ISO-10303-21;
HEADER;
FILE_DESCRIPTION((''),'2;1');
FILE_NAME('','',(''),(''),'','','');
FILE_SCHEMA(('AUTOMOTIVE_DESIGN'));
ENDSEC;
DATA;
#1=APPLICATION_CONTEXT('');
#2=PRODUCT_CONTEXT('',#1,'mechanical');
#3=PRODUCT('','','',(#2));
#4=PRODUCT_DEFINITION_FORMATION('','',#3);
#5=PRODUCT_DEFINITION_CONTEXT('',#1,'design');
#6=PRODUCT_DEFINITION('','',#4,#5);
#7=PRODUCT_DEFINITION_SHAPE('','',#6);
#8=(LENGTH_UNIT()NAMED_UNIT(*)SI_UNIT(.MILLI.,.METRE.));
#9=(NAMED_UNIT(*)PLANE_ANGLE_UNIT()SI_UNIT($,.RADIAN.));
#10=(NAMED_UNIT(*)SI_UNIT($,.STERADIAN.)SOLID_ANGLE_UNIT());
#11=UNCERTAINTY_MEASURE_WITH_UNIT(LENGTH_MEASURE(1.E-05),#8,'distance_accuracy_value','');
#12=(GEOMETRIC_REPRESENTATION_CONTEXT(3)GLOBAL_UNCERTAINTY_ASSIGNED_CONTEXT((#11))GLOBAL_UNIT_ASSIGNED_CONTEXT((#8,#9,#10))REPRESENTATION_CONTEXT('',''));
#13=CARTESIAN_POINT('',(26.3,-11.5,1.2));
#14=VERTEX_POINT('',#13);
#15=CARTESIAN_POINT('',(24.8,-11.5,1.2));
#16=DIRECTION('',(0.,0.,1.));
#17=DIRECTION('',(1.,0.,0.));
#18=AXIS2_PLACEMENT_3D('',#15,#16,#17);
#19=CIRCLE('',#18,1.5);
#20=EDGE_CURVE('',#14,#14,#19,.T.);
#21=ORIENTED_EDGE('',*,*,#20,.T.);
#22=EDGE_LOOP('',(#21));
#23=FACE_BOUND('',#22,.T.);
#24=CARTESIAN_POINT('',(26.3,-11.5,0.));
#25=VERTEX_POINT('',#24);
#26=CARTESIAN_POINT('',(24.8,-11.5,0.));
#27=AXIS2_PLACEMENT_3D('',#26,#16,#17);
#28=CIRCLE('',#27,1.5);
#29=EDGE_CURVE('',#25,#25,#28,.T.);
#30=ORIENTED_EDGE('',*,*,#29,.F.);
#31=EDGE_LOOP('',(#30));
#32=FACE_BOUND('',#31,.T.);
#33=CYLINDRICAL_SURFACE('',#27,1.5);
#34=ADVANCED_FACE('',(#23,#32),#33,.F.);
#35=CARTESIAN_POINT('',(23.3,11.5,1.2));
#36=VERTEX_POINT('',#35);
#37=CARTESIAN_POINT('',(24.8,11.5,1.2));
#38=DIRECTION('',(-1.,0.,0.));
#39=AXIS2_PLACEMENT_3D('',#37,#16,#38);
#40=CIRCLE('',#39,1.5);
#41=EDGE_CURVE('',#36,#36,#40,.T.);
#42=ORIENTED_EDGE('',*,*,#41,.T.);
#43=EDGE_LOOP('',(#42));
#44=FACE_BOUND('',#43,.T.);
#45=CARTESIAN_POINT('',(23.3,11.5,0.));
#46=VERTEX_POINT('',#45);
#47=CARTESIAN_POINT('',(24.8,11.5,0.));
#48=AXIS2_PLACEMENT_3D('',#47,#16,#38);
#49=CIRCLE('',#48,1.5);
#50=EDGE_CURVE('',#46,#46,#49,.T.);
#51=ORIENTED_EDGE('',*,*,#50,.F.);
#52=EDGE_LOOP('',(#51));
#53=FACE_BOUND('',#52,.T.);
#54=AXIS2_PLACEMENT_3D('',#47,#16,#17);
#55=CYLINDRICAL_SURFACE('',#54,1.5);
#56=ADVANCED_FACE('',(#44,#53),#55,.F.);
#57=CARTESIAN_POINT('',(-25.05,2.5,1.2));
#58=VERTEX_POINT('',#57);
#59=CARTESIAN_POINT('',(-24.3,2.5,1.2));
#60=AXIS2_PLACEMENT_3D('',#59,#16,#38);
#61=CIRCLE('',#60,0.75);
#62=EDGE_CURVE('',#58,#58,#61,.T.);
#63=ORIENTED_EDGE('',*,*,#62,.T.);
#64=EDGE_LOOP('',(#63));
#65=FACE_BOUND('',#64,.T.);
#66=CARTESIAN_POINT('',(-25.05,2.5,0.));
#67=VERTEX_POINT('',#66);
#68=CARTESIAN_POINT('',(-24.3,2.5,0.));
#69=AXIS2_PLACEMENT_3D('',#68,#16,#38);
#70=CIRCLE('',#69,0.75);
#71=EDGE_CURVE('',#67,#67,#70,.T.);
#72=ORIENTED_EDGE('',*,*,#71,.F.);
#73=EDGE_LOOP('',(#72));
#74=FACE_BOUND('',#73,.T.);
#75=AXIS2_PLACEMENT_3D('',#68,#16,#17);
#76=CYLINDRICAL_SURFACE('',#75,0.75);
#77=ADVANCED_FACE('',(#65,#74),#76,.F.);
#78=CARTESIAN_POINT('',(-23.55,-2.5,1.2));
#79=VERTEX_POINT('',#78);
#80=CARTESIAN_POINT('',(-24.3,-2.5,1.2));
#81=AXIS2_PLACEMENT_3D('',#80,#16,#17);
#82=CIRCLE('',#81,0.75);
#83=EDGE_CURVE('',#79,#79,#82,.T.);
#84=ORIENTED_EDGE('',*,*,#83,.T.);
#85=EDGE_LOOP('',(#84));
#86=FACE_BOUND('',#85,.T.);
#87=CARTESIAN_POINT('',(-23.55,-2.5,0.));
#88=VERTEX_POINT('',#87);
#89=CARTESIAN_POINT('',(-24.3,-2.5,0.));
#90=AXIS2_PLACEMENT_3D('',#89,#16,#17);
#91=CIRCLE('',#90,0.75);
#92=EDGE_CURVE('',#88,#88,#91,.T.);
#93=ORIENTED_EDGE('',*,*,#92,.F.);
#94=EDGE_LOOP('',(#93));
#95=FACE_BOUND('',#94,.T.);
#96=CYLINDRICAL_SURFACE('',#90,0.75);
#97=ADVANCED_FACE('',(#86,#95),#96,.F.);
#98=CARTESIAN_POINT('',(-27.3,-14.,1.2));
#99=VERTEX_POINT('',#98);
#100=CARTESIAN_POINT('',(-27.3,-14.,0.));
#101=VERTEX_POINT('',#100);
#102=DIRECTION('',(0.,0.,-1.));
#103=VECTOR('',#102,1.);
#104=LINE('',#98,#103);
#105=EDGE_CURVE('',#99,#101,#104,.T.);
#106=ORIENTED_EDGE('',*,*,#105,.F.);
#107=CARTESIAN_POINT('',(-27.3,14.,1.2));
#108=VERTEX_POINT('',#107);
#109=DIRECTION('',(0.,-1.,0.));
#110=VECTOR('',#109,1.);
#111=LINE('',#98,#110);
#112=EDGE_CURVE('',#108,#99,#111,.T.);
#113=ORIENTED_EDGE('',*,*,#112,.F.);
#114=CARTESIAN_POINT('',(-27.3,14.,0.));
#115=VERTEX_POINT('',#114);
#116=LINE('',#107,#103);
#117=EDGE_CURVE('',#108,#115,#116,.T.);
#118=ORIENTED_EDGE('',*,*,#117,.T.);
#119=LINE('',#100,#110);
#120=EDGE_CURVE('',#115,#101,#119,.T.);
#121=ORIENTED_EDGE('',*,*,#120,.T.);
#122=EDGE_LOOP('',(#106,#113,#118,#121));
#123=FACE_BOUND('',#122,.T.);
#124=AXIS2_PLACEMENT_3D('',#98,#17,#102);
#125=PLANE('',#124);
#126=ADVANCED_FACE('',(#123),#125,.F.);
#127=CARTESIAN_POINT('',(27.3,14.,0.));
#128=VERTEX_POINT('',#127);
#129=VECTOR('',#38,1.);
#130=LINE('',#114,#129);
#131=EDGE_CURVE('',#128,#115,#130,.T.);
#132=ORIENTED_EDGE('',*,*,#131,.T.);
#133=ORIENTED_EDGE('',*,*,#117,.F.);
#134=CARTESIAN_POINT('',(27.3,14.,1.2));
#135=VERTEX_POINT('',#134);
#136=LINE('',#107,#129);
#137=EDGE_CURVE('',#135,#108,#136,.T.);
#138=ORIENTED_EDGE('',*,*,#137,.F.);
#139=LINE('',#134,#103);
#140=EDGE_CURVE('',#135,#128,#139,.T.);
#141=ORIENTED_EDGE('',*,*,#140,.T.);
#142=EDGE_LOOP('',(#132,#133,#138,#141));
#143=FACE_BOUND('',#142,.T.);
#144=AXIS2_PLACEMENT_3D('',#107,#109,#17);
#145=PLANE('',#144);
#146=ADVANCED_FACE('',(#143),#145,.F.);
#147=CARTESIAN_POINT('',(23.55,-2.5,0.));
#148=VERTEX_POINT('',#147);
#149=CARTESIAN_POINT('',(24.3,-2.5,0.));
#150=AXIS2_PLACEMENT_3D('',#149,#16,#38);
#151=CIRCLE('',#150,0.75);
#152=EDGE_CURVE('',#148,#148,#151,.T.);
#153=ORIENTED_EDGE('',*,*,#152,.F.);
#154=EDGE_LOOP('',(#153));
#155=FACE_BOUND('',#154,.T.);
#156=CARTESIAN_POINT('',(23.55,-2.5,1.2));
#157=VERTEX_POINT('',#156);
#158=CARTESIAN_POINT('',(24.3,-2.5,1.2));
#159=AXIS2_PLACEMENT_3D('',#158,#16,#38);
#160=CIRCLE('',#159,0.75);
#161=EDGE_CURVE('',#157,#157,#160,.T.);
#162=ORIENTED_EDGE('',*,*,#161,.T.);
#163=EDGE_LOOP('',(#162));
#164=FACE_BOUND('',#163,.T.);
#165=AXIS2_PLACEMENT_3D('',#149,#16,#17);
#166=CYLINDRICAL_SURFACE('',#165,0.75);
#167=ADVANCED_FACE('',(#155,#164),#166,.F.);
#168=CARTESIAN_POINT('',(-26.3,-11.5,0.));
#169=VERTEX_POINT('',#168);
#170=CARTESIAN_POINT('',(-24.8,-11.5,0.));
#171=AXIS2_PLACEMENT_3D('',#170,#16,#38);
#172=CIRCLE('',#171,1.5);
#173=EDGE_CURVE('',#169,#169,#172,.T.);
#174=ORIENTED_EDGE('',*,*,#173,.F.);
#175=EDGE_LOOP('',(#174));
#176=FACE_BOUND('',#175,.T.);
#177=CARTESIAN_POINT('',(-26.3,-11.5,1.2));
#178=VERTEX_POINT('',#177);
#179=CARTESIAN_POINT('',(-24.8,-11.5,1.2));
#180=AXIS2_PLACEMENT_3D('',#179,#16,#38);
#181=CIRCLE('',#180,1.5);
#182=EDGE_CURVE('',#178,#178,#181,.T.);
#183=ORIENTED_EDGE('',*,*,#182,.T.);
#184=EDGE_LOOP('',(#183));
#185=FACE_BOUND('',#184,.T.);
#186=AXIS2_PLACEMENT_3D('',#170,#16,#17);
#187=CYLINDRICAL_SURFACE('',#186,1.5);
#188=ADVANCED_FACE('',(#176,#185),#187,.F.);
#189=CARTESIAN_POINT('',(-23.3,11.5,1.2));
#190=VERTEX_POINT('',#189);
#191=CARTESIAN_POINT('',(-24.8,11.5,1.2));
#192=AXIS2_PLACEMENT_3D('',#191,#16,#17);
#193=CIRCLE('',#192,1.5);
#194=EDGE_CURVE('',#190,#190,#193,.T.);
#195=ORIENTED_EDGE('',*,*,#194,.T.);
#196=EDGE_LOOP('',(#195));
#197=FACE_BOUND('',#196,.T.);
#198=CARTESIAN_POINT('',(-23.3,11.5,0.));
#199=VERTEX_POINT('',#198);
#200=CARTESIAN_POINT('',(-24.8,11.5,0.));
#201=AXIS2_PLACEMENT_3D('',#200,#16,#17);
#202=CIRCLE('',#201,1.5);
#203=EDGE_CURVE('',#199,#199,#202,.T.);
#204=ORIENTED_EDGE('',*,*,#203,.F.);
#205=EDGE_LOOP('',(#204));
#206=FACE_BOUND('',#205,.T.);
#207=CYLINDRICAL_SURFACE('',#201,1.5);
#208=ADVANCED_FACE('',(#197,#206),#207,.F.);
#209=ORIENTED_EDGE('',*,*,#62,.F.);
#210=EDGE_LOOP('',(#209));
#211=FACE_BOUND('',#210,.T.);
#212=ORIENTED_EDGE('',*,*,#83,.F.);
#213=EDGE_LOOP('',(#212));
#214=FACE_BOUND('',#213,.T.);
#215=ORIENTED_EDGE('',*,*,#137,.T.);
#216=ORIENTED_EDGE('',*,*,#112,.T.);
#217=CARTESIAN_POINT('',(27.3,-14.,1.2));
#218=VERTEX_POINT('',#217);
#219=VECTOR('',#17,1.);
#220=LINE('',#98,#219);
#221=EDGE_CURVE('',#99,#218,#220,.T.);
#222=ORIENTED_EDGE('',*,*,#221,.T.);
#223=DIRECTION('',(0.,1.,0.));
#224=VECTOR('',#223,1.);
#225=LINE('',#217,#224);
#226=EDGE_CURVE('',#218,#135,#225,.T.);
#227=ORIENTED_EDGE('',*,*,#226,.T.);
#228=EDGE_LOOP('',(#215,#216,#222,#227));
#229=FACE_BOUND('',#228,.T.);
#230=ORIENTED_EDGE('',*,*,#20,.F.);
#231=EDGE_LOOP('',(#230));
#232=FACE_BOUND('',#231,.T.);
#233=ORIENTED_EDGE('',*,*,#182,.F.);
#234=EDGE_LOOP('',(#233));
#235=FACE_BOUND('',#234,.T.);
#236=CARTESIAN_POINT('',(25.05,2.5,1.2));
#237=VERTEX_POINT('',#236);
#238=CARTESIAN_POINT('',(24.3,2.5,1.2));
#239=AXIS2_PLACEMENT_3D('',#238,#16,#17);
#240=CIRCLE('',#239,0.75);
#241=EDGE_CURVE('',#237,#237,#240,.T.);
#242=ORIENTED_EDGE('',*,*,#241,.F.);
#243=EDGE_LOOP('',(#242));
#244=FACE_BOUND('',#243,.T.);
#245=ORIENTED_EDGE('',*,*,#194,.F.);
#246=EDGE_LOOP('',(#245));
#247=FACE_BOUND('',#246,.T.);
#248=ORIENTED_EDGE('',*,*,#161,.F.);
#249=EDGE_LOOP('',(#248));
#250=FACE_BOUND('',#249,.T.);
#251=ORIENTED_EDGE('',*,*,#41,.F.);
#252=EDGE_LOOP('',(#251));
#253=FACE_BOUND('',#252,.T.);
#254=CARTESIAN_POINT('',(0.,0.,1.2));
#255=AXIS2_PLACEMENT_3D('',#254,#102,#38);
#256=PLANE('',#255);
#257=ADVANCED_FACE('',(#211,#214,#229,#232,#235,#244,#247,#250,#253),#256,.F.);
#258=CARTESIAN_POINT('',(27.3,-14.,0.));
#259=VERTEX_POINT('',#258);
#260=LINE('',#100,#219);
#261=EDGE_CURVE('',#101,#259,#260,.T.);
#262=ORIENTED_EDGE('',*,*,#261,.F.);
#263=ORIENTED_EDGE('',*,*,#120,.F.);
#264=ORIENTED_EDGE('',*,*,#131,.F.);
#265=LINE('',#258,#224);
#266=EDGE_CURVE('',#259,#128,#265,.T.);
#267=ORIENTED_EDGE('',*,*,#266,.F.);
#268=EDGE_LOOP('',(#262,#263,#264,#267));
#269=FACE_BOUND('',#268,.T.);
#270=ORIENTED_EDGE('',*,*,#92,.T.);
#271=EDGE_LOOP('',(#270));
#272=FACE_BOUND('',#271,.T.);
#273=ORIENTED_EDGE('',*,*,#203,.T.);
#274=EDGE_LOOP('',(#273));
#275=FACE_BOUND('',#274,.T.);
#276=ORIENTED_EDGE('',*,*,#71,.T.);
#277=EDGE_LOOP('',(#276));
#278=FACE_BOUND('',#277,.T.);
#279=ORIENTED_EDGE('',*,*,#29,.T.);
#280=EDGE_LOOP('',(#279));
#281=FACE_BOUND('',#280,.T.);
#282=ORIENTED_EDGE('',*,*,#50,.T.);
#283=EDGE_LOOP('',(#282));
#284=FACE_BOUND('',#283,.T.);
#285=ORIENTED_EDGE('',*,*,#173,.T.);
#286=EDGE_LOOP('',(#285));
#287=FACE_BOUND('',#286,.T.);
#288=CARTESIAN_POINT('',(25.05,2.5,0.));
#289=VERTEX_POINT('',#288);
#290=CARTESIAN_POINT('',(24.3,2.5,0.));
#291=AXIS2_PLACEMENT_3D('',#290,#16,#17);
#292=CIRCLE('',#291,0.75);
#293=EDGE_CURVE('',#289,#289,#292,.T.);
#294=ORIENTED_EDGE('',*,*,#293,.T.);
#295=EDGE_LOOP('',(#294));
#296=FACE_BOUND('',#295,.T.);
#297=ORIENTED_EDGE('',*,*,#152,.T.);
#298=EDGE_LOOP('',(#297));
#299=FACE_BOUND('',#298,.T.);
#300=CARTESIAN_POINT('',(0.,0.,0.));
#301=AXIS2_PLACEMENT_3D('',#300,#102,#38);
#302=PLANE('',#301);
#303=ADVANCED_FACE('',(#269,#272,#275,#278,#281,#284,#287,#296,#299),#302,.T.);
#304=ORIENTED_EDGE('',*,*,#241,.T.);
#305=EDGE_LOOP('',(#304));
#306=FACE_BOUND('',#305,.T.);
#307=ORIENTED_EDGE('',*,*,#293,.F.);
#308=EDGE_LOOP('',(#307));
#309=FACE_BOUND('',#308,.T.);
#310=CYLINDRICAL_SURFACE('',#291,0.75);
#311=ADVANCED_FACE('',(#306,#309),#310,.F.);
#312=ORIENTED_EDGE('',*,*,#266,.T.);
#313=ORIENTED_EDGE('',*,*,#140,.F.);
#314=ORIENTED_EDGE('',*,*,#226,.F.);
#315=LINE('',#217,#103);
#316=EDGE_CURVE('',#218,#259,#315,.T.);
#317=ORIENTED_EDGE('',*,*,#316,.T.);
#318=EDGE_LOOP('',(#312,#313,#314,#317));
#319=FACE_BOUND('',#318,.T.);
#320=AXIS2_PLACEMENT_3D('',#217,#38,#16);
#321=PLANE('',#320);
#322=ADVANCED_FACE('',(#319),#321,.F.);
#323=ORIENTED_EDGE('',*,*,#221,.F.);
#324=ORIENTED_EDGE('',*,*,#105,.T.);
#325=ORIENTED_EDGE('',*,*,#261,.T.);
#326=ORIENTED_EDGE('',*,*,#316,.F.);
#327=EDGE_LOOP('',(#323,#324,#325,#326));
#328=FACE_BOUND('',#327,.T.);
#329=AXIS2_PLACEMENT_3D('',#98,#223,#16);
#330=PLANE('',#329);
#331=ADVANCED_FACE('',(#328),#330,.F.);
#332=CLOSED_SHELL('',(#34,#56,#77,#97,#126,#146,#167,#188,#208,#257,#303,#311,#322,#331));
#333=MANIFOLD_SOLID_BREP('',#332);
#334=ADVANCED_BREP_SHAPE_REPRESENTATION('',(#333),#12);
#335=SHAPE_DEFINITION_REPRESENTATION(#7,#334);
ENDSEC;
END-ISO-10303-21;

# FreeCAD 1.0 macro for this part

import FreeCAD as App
import Part
import Sketcher

V = App.Vector
Q = App.Units.Quantity

doc = App.newDocument("Part")
params = doc.addObject("Spreadsheet::Sheet", "Params")
for row, (alias, value) in enumerate([
    ("sketch1_height", "28 mm"),
    ("sketch1_width", "54.6 mm"),
    ("pad1_length", "1.2 mm"),
    ("sketch2_diameter", "3 mm"),
    ("sketch3_diameter", "1.5 mm"),
], start=1):
    params.set(f"A{row}", alias)
    params.set(f"B{row}", "=" + value)
    params.setAlias(f"B{row}", alias)

body = doc.addObject("PartDesign::Body", "Body")

# Sketch on XY plane
sketch1 = body.newObject("Sketcher::SketchObject", "Sketch")
sketch1.AttachmentSupport = (doc.getObject("XY_Plane"), [""])
sketch1.MapMode = "FlatFace"
sketch1.addGeometry(Part.LineSegment(V(-27, 14, 0), V(-27, -14, 0)), False)
sketch1.addGeometry(Part.LineSegment(V(-27, -14, 0), V(27, -14, 0)), False)
sketch1.addGeometry(Part.LineSegment(V(27, -14, 0), V(27, 14, 0)), False)
sketch1.addGeometry(Part.LineSegment(V(27, 14, 0), V(-27, 14, 0)), False)
sketch1.addConstraint(Sketcher.Constraint("Coincident", 0, 2, 1, 1))
sketch1.addConstraint(Sketcher.Constraint("Coincident", 1, 2, 2, 1))
sketch1.addConstraint(Sketcher.Constraint("Coincident", 2, 2, 3, 1))
sketch1.addConstraint(Sketcher.Constraint("Coincident", 3, 2, 0, 1))
sketch1.addConstraint(Sketcher.Constraint("Vertical", 0))
sketch1.addConstraint(Sketcher.Constraint("Horizontal", 1))
sketch1.addConstraint(Sketcher.Constraint("Vertical", 2))
sketch1.addConstraint(Sketcher.Constraint("Horizontal", 3))
sketch1.addConstraint(Sketcher.Constraint("Symmetric", 0, 2, 2, 2, -1, 1))
sketch1.addConstraint(Sketcher.Constraint("DistanceY", 0, 2, 0, 1, Q("28 mm")))
sketch1.addConstraint(Sketcher.Constraint("DistanceX", 1, 1, 1, 2, Q("54.6 mm")))
sketch1.setExpression("Constraints[9]", "Params.sketch1_height")
sketch1.setExpression("Constraints[10]", "Params.sketch1_width")
pad1 = body.newObject("PartDesign::Pad", "Pad")
pad1.Profile = sketch1
pad1.setExpression("Length", "Params.pad1_length")

# Sketch on XY plane
sketch2 = body.newObject("Sketcher::SketchObject", "Sketch001")
sketch2.AttachmentSupport = (doc.getObject("XY_Plane"), [""])
sketch2.MapMode = "FlatFace"
sketch2.AttachmentOffset = App.Placement(V(0, 0, 1.2), App.Rotation())
sketch2.addGeometry(Part.Circle(V(-24.8, 11.5, 0), V(0, 0, 1), 1.5), False)
sketch2.addGeometry(Part.Circle(V(24.8, 11.5, 0), V(0, 0, 1), 1.5), False)
sketch2.addGeometry(Part.Circle(V(-24.8, -11.5, 0), V(0, 0, 1), 1.5), False)
sketch2.addGeometry(Part.Circle(V(24.8, -11.5, 0), V(0, 0, 1), 1.5), False)
sketch2.addConstraint(Sketcher.Constraint("Equal", 0, 1))
sketch2.addConstraint(Sketcher.Constraint("Equal", 1, 2))
sketch2.addConstraint(Sketcher.Constraint("Equal", 2, 3))
sketch2.addConstraint(Sketcher.Constraint("Symmetric", 1, 3, 2, 3, -1, 1))
sketch2.addConstraint(Sketcher.Constraint("Symmetric", 0, 3, 3, 3, -1, 1))
sketch2.addConstraint(Sketcher.Constraint("Symmetric", 0, 3, 1, 3, -2))
sketch2.addConstraint(Sketcher.Constraint("Diameter", 0, Q("3 mm")))
sketch2.addConstraint(Sketcher.Constraint("DistanceY", 2, 3, 0, 3, Q("23 mm")))
sketch2.addConstraint(Sketcher.Constraint("DistanceX", 0, 3, -1, 1, Q("24.8 mm")))
sketch2.setExpression("Constraints[6]", "Params.sketch2_diameter")
pocket1 = body.newObject("PartDesign::Pocket", "Pocket")
pocket1.Profile = sketch2
pocket1.Type = "ThroughAll"

# Sketch on XY plane
sketch3 = body.newObject("Sketcher::SketchObject", "Sketch002")
sketch3.AttachmentSupport = (doc.getObject("XY_Plane"), [""])
sketch3.MapMode = "FlatFace"
sketch3.AttachmentOffset = App.Placement(V(0, 0, 1.2), App.Rotation())
sketch3.addGeometry(Part.Circle(V(24.3, 2.5, 0), V(0, 0, 1), 0.8), False)
sketch3.addGeometry(Part.Circle(V(24.3, -2.5, 0), V(0, 0, 1), 0.8), False)
sketch3.addGeometry(Part.Circle(V(-24.3, -2.5, 0), V(0, 0, 1), 0.8), False)
sketch3.addGeometry(Part.Circle(V(-24.3, 2.5, 0), V(0, 0, 1), 0.8), False)
sketch3.addConstraint(Sketcher.Constraint("Equal", 0, 1))
sketch3.addConstraint(Sketcher.Constraint("Equal", 1, 2))
sketch3.addConstraint(Sketcher.Constraint("Equal", 2, 3))
sketch3.addConstraint(Sketcher.Constraint("Symmetric", 0, 3, 2, 3, -1, 1))
sketch3.addConstraint(Sketcher.Constraint("Symmetric", 1, 3, 3, 3, -1, 1))
sketch3.addConstraint(Sketcher.Constraint("Symmetric", 1, 3, 2, 3, -2))
sketch3.addConstraint(Sketcher.Constraint("Diameter", 0, Q("1.5 mm")))
sketch3.addConstraint(Sketcher.Constraint("DistanceY", 1, 3, 0, 3, Q("5 mm")))
sketch3.addConstraint(Sketcher.Constraint("DistanceX", -1, 1, 0, 3, Q("24.3 mm")))
sketch3.setExpression("Constraints[6]", "Params.sketch3_diameter")
pocket2 = body.newObject("PartDesign::Pocket", "Pocket001")
pocket2.Profile = sketch3
pocket2.Type = "ThroughAll"

doc.recompute()
